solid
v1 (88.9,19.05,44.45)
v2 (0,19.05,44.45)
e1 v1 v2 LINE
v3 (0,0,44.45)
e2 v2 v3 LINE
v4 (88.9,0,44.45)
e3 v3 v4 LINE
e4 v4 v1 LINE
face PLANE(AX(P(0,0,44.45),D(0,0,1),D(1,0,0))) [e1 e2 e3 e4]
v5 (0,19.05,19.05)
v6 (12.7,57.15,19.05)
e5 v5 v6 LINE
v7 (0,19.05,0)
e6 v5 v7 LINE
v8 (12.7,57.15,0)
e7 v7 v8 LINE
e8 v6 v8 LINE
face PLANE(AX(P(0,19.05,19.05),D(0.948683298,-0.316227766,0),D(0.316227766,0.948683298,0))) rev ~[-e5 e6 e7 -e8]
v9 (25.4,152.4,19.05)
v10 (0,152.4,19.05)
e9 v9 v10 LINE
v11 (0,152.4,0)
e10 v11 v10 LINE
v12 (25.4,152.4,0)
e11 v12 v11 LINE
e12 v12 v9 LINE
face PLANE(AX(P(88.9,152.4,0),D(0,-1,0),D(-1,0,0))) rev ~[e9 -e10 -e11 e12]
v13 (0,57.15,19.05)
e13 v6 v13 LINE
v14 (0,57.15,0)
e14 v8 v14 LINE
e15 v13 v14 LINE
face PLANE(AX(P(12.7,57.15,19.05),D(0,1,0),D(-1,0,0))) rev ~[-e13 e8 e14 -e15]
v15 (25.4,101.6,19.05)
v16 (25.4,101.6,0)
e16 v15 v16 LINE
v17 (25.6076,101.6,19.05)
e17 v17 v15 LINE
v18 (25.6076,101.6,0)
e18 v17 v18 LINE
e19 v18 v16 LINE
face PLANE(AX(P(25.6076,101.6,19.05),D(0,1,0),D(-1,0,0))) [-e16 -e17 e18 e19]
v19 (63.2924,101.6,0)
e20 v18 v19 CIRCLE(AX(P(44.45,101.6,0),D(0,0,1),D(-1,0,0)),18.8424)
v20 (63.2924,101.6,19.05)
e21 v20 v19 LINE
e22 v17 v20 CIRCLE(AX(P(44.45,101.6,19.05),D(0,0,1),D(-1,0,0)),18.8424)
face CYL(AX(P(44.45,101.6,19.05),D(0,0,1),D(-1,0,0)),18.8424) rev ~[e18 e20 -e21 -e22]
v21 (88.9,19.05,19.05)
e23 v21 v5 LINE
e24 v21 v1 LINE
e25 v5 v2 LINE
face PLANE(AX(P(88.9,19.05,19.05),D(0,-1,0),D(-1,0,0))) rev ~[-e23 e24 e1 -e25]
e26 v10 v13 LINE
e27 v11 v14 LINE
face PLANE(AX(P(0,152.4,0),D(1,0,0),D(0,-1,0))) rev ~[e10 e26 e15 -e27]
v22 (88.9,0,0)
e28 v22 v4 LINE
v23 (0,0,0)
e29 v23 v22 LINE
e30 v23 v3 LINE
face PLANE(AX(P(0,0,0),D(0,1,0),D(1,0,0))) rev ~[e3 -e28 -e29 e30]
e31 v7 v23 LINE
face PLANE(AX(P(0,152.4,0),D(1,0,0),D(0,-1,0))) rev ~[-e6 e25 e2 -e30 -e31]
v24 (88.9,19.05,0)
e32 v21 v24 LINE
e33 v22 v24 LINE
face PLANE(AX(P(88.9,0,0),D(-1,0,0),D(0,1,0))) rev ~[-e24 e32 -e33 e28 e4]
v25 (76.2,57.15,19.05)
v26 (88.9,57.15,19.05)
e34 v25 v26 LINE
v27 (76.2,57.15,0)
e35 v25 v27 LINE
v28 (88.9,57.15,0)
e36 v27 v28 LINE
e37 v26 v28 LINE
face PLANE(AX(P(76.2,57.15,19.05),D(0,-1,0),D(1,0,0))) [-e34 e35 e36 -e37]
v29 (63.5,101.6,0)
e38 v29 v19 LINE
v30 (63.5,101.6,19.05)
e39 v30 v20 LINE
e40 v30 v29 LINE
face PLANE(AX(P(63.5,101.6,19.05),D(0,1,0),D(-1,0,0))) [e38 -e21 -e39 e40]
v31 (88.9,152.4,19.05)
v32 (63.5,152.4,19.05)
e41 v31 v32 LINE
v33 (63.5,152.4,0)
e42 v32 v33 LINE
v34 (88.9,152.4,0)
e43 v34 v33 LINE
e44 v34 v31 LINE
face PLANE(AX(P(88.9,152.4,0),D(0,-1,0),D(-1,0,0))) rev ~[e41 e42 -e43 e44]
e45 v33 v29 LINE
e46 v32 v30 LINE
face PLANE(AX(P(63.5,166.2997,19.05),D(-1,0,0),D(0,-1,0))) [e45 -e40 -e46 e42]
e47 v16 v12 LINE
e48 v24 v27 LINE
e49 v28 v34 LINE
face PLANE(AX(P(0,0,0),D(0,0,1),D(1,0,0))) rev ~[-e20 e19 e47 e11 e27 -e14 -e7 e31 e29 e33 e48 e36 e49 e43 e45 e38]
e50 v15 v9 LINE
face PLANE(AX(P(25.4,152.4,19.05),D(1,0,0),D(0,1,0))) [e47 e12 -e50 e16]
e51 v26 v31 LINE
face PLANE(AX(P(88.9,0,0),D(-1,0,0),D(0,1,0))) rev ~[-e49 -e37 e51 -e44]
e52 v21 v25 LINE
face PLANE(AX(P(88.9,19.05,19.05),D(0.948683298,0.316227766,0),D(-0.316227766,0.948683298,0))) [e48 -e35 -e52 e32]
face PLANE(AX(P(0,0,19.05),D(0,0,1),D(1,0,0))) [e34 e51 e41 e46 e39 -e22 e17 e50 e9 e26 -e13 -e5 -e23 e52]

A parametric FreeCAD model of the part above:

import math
import FreeCAD as App
import Part
import Sketcher
from FreeCAD import Vector
Q = App.Units.Quantity


def add_polygon(sketch, points):
    """Adds a closed chain of lines whose ends are joined by coincident constraints."""
    first, n = sketch.GeometryCount, len(points)
    for a, b in zip(points, points[1:] + points[:1]):
        sketch.addGeometry(Part.LineSegment(App.Vector(*a, 0), App.Vector(*b, 0)), False)
    for i in range(n):
        sketch.addConstraint(Sketcher.Constraint("Coincident", first + i, 2, first + (i + 1) % n, 1))

doc = App.newDocument("Part")
params = doc.addObject("Spreadsheet::Sheet", "Params")
for row, (alias, value) in enumerate([
    ("sketch1_height", "6 in"),
    ("sketch1_width", "3.5 in"),
    ("pad1_length", "0.75 in"),
    ("sketch2_height", "0.75 in"),
    ("sketch2_width", "3.5 in"),
    ("pad2_length", "1 in"),
    ("sketch3_width", "1.5 in"),
    ("pocket1_length", "1 in"),
    ("sketch4_width", "0.5 in"),
    ("sketch4_height", "1.5 in"),
    ("pocket2_length", "1 in"),
    ("sketch5_width", "0.5 in"),
    ("sketch5_height", "1.5 in"),
    ("pocket3_length", "1 in"),
], start=1):
    params.set(f"A{row}", alias)
    params.set(f"B{row}", "=" + value)
    params.setAlias(f"B{row}", alias)

body = doc.addObject("PartDesign::Body", "Body")

sketch1 = body.newObject("Sketcher::SketchObject", "Sketch")
sketch1.AttachmentSupport = (doc.getObject("XY_Plane"), [""])
sketch1.MapMode = "FlatFace"
add_polygon(sketch1, [(0, 152), (0, 0), (89, 0), (89, 152)])
sketch1.addConstraint(Sketcher.Constraint("Vertical", 0))
sketch1.addConstraint(Sketcher.Constraint("Horizontal", 1))
sketch1.addConstraint(Sketcher.Constraint("Vertical", 2))
sketch1.addConstraint(Sketcher.Constraint("Horizontal", 3))
sketch1.addConstraint(Sketcher.Constraint("Coincident", 0, 2, -1, 1))
sketch1.addConstraint(Sketcher.Constraint("DistanceY", 0, 2, 0, 1, Q("6 in")))
sketch1.addConstraint(Sketcher.Constraint("DistanceX", 1, 1, 1, 2, Q("3.5 in")))
sketch1.setExpression("Constraints[9]", "Params.sketch1_height")
sketch1.setExpression("Constraints[10]", "Params.sketch1_width")
pad1 = body.newObject("PartDesign::Pad", "Pad")
pad1.Profile = sketch1
pad1.setExpression("Length", "Params.pad1_length")

sketch2 = body.newObject("Sketcher::SketchObject", "Sketch001")
sketch2.AttachmentSupport = (doc.getObject("XY_Plane"), [""])
sketch2.MapMode = "FlatFace"
sketch2.AttachmentOffset = App.Placement(Vector(0, 0, 0.75 * 25.4), App.Rotation())
add_polygon(sketch2, [(0, 19), (0, 0), (89, 0), (89, 19)])
sketch2.addConstraint(Sketcher.Constraint("Vertical", 0))
sketch2.addConstraint(Sketcher.Constraint("Horizontal", 1))
sketch2.addConstraint(Sketcher.Constraint("Vertical", 2))
sketch2.addConstraint(Sketcher.Constraint("Horizontal", 3))
sketch2.addConstraint(Sketcher.Constraint("Coincident", 0, 2, -1, 1))
sketch2.addConstraint(Sketcher.Constraint("DistanceY", 0, 2, 0, 1, Q("0.75 in")))
sketch2.addConstraint(Sketcher.Constraint("DistanceX", 1, 1, 1, 2, Q("3.5 in")))
sketch2.setExpression("Constraints[9]", "Params.sketch2_height")
sketch2.setExpression("Constraints[10]", "Params.sketch2_width")
pad2 = body.newObject("PartDesign::Pad", "Pad001")
pad2.Profile = sketch2
pad2.setExpression("Length", "Params.pad2_length")

sketch3 = body.newObject("Sketcher::SketchObject", "Sketch002")
sketch3.AttachmentSupport = (doc.getObject("XY_Plane"), [""])
sketch3.MapMode = "FlatFace"
sketch3.AttachmentOffset = App.Placement(Vector(0, 0, 0.75 * 25.4), App.Rotation())
sketch3.addGeometry(Part.LineSegment(Vector(63.5, 166.3, 0), Vector(25.4, 166.3, 0)), False)
sketch3.addGeometry(Part.LineSegment(Vector(25.4, 166.3, 0), Vector(25.4, 101.6, 0)), False)
sketch3.addGeometry(Part.LineSegment(Vector(25.4, 101.6, 0), Vector(25.61, 101.6, 0)), False)
sketch3.addGeometry(Part.ArcOfCircle(Part.Circle(Vector(44.45, 101.6, 0), Vector(0, 0, 1), 18.84), math.radians(180), math.radians(360)), False)
sketch3.addGeometry(Part.LineSegment(Vector(63.29, 101.6, 0), Vector(63.5, 101.6, 0)), False)
sketch3.addGeometry(Part.LineSegment(Vector(63.5, 101.6, 0), Vector(63.5, 166.3, 0)), False)
sketch3.addConstraint(Sketcher.Constraint("Coincident", 0, 2, 1, 1))
sketch3.addConstraint(Sketcher.Constraint("Coincident", 1, 2, 2, 1))
sketch3.addConstraint(Sketcher.Constraint("Coincident", 2, 2, 3, 1))
sketch3.addConstraint(Sketcher.Constraint("Coincident", 3, 2, 4, 1))
sketch3.addConstraint(Sketcher.Constraint("Coincident", 4, 2, 5, 1))
sketch3.addConstraint(Sketcher.Constraint("Coincident", 5, 2, 0, 1))
sketch3.addConstraint(Sketcher.Constraint("Horizontal", 0))
sketch3.addConstraint(Sketcher.Constraint("Vertical", 1))
sketch3.addConstraint(Sketcher.Constraint("Horizontal", 2))
sketch3.addConstraint(Sketcher.Constraint("Horizontal", 4))
sketch3.addConstraint(Sketcher.Constraint("Vertical", 5))
sketch3.addConstraint(Sketcher.Constraint("Horizontal", 3, 3, 1, 2))
sketch3.addConstraint(Sketcher.Constraint("Horizontal", 2, 2, 3, 2))
sketch3.addConstraint(Sketcher.Constraint("Equal", 2, 4))
sketch3.addConstraint(Sketcher.Constraint("DistanceX", -1, 1, 0, 2, Q("1 in")))
sketch3.addConstraint(Sketcher.Constraint("DistanceX", 0, 2, 0, 1, Q("1.5 in")))
sketch3.addConstraint(Sketcher.Constraint("DistanceY", -1, 1, 3, 3, Q("4 in")))
sketch3.addConstraint(Sketcher.Constraint("Radius", 3, 18.8424))
sketch3.addConstraint(Sketcher.Constraint("DistanceY", 1, 2, 1, 1, 64.6997))
sketch3.setExpression("Constraints[15]", "Params.sketch3_width")
pocket1 = body.newObject("PartDesign::Pocket", "Pocket")
pocket1.Profile = sketch3
pocket1.setExpression("Length", "Params.pocket1_length")

sketch4 = body.newObject("Sketcher::SketchObject", "Sketch003")
sketch4.AttachmentSupport = (doc.getObject("XY_Plane"), [""])
sketch4.MapMode = "FlatFace"
sketch4.AttachmentOffset = App.Placement(Vector(0, 0, 0.75 * 25.4), App.Rotation())
add_polygon(sketch4, [(0, 57), (0, 19), (13, 57)])
sketch4.addConstraint(Sketcher.Constraint("Vertical", 0))
sketch4.addConstraint(Sketcher.Constraint("Horizontal", 2))
sketch4.addConstraint(Sketcher.Constraint("PointOnObject", 0, 2, -2))
sketch4.addConstraint(Sketcher.Constraint("DistanceX", 2, 2, 2, 1, Q("0.5 in")))
sketch4.addConstraint(Sketcher.Constraint("DistanceY", 0, 2, 0, 1, Q("1.5 in")))
sketch4.addConstraint(Sketcher.Constraint("DistanceY", -1, 1, 0, 2, Q("0.75 in")))
sketch4.setExpression("Constraints[6]", "Params.sketch4_width")
sketch4.setExpression("Constraints[7]", "Params.sketch4_height")
pocket2 = body.newObject("PartDesign::Pocket", "Pocket001")
pocket2.Profile = sketch4
pocket2.setExpression("Length", "Params.pocket2_length")

sketch5 = body.newObject("Sketcher::SketchObject", "Sketch004")
sketch5.AttachmentSupport = (doc.getObject("XY_Plane"), [""])
sketch5.MapMode = "FlatFace"
sketch5.AttachmentOffset = App.Placement(Vector(0, 0, 0.75 * 25.4), App.Rotation())
add_polygon(sketch5, [(76, 57), (89, 19), (89, 57)])
sketch5.addConstraint(Sketcher.Constraint("Vertical", 1))
sketch5.addConstraint(Sketcher.Constraint("Horizontal", 2))
sketch5.addConstraint(Sketcher.Constraint("DistanceX", 2, 2, 2, 1, Q("0.5 in")))
sketch5.addConstraint(Sketcher.Constraint("DistanceY", 1, 1, 1, 2, Q("1.5 in")))
sketch5.addConstraint(Sketcher.Constraint("DistanceX", -1, 1, 2, 2, Q("3 in")))
sketch5.addConstraint(Sketcher.Constraint("DistanceY", -1, 1, 0, 2, Q("0.75 in")))
sketch5.setExpression("Constraints[5]", "Params.sketch5_width")
sketch5.setExpression("Constraints[6]", "Params.sketch5_height")
pocket3 = body.newObject("PartDesign::Pocket", "Pocket002")
pocket3.Profile = sketch5
pocket3.setExpression("Length", "Params.pocket3_length")

doc.recompute()
